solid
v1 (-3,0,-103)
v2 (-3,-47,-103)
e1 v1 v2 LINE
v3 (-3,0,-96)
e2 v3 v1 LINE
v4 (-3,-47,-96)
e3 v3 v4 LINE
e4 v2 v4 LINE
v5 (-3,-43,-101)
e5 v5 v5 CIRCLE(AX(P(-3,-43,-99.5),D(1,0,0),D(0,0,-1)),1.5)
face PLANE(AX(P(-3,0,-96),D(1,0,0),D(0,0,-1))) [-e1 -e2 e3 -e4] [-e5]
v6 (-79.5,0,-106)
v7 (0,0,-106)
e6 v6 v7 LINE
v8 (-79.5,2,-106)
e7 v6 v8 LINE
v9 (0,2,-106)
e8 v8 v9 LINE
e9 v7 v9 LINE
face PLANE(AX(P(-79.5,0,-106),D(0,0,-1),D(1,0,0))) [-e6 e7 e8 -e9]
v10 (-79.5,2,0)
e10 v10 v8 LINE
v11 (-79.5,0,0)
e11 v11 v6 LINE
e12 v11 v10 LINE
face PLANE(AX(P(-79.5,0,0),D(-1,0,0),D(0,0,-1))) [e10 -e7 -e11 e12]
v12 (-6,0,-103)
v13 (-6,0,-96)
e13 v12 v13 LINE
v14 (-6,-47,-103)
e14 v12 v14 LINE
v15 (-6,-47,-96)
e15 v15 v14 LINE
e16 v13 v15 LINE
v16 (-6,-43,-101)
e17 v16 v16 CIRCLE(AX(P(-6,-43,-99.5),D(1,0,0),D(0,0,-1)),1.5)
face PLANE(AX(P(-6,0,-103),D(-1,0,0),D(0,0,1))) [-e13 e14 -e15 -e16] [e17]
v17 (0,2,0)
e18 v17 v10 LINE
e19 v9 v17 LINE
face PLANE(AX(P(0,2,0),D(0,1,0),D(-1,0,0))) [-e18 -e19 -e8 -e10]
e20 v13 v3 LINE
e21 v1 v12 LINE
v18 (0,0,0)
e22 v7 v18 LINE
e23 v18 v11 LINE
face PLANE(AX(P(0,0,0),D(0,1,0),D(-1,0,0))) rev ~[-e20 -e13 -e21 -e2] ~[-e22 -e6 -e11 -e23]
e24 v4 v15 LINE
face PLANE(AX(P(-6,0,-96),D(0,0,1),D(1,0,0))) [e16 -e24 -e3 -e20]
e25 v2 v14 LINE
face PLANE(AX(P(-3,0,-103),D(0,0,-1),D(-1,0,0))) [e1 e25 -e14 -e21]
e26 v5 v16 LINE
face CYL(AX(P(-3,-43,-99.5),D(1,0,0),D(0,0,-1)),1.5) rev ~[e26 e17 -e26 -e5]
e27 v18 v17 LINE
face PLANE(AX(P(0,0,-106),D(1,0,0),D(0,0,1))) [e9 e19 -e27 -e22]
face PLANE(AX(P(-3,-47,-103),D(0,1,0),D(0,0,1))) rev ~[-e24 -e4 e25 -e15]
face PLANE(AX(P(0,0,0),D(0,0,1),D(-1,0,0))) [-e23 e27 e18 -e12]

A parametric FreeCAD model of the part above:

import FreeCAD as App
import Part
import Sketcher

V = App.Vector
Q = App.Units.Quantity


def add_polygon(sketch, points):
    """Adds a closed chain of lines whose ends are joined by coincident constraints."""
    first, n = sketch.GeometryCount, len(points)
    for a, b in zip(points, points[1:] + points[:1]):
        sketch.addGeometry(Part.LineSegment(App.Vector(*a, 0), App.Vector(*b, 0)), False)
    for i in range(n):
        sketch.addConstraint(Sketcher.Constraint("Coincident", first + i, 2, first + (i + 1) % n, 1))

doc = App.newDocument("Part")
params = doc.addObject("Spreadsheet::Sheet", "Params")
for row, (alias, value) in enumerate([
    ("sketch1_height", "106 mm"),
    ("sketch1_width", "79.5 mm"),
    ("pad1_length", "2 mm"),
    ("sketch2_width", "3 mm"),
    ("sketch2_height", "7 mm"),
    ("pad2_length", "48 mm"),
    ("sketch3_diameter", "3 mm"),
    ("pocket1_length", "33 mm"),
    ("sketch4_width", "1 mm"),
    ("sketch4_height", "7 mm"),
    ("pocket2_length", "33 mm"),
], start=1):
    params.set(f"A{row}", alias)
    params.set(f"B{row}", "=" + value)
    params.setAlias(f"B{row}", alias)

body = doc.addObject("PartDesign::Body", "Body")

# Sketch on XZ plane
sketch1 = body.newObject("Sketcher::SketchObject", "Sketch")
sketch1.AttachmentSupport = (doc.getObject("XZ_Plane"), [""])
sketch1.MapMode = "FlatFace"
add_polygon(sketch1, [(-80, 0), (0, 0), (0, -106), (-80, -106)])  # lines 0-3
sketch1.addConstraint(Sketcher.Constraint("Horizontal", 0))
sketch1.addConstraint(Sketcher.Constraint("Vertical", 1))
sketch1.addConstraint(Sketcher.Constraint("Horizontal", 2))
sketch1.addConstraint(Sketcher.Constraint("Vertical", 3))
sketch1.addConstraint(Sketcher.Constraint("Coincident", 0, 2, -1, 1))
sketch1.addConstraint(Sketcher.Constraint("DistanceY", 1, 2, 1, 1, Q("106 mm")))
sketch1.addConstraint(Sketcher.Constraint("DistanceX", 0, 1, 0, 2, Q("79.5 mm")))
sketch1.setExpression("Constraints[9]", "Params.sketch1_height")
sketch1.setExpression("Constraints[10]", "Params.sketch1_width")
pad1 = body.newObject("PartDesign::Pad", "Pad")
pad1.Profile = sketch1
pad1.setExpression("Length", "Params.pad1_length")
pad1.Reversed = True

# Sketch on XZ plane
sketch2 = body.newObject("Sketcher::SketchObject", "Sketch001")
sketch2.AttachmentSupport = (doc.getObject("XZ_Plane"), [""])
sketch2.MapMode = "FlatFace"
add_polygon(sketch2, [(-6, -103), (-3, -103), (-3, -96), (-6, -96)])  # lines 0-3
sketch2.addConstraint(Sketcher.Constraint("Horizontal", 0))
sketch2.addConstraint(Sketcher.Constraint("Vertical", 1))
sketch2.addConstraint(Sketcher.Constraint("Horizontal", 2))
sketch2.addConstraint(Sketcher.Constraint("Vertical", 3))
sketch2.addConstraint(Sketcher.Constraint("DistanceX", 0, 1, 0, 2, Q("3 mm")))
sketch2.addConstraint(Sketcher.Constraint("DistanceY", 1, 1, 1, 2, Q("7 mm")))
sketch2.addConstraint(Sketcher.Constraint("DistanceX", 0, 2, -1, 1, Q("3 mm")))
sketch2.addConstraint(Sketcher.Constraint("DistanceY", 0, 2, -1, 1, Q("103 mm")))
sketch2.setExpression("Constraints[8]", "Params.sketch2_width")
sketch2.setExpression("Constraints[9]", "Params.sketch2_height")
pad2 = body.newObject("PartDesign::Pad", "Pad001")
pad2.Profile = sketch2
pad2.setExpression("Length", "Params.pad2_length")

# Sketch on YZ plane
sketch3 = body.newObject("Sketcher::SketchObject", "Sketch002")
sketch3.AttachmentSupport = (doc.getObject("YZ_Plane"), [""])
sketch3.MapMode = "FlatFace"
sketch3.AttachmentOffset = App.Placement(V(0, 0, -3), App.Rotation())
sketch3.addGeometry(Part.Circle(V(-43, -99.5, 0), V(0, 0, 1), 1.5), False)
sketch3.addConstraint(Sketcher.Constraint("Diameter", 0, Q("3 mm")))
sketch3.addConstraint(Sketcher.Constraint("DistanceX", 0, 3, -1, 1, Q("43 mm")))
sketch3.addConstraint(Sketcher.Constraint("DistanceY", 0, 3, -1, 1, Q("99.5 mm")))
sketch3.setExpression("Constraints[0]", "Params.sketch3_diameter")
pocket1 = body.newObject("PartDesign::Pocket", "Pocket")
pocket1.Profile = sketch3
pocket1.setExpression("Length", "Params.pocket1_length")

# Sketch on YZ plane
sketch4 = body.newObject("Sketcher::SketchObject", "Sketch003")
sketch4.AttachmentSupport = (doc.getObject("YZ_Plane"), [""])
sketch4.MapMode = "FlatFace"
sketch4.AttachmentOffset = App.Placement(V(0, 0, -3), App.Rotation())
add_polygon(sketch4, [(-47, -103), (-47, -96), (-48, -96), (-48, -103)])  # lines 0-3
sketch4.addConstraint(Sketcher.Constraint("Vertical", 0))
sketch4.addConstraint(Sketcher.Constraint("Horizontal", 1))
sketch4.addConstraint(Sketcher.Constraint("Vertical", 2))
sketch4.addConstraint(Sketcher.Constraint("Horizontal", 3))
sketch4.addConstraint(Sketcher.Constraint("DistanceX", 1, 2, 1, 1, Q("1 mm")))
sketch4.addConstraint(Sketcher.Constraint("DistanceY", 0, 1, 0, 2, Q("7 mm")))
sketch4.addConstraint(Sketcher.Constraint("DistanceX", 0, 2, -1, 1, Q("47 mm")))
sketch4.addConstraint(Sketcher.Constraint("DistanceY", 0, 2, -1, 1, Q("96 mm")))
sketch4.setExpression("Constraints[8]", "Params.sketch4_width")
sketch4.setExpression("Constraints[9]", "Params.sketch4_height")
pocket2 = body.newObject("PartDesign::Pocket", "Pocket001")
pocket2.Profile = sketch4
pocket2.setExpression("Length", "Params.pocket2_length")

doc.recompute()
